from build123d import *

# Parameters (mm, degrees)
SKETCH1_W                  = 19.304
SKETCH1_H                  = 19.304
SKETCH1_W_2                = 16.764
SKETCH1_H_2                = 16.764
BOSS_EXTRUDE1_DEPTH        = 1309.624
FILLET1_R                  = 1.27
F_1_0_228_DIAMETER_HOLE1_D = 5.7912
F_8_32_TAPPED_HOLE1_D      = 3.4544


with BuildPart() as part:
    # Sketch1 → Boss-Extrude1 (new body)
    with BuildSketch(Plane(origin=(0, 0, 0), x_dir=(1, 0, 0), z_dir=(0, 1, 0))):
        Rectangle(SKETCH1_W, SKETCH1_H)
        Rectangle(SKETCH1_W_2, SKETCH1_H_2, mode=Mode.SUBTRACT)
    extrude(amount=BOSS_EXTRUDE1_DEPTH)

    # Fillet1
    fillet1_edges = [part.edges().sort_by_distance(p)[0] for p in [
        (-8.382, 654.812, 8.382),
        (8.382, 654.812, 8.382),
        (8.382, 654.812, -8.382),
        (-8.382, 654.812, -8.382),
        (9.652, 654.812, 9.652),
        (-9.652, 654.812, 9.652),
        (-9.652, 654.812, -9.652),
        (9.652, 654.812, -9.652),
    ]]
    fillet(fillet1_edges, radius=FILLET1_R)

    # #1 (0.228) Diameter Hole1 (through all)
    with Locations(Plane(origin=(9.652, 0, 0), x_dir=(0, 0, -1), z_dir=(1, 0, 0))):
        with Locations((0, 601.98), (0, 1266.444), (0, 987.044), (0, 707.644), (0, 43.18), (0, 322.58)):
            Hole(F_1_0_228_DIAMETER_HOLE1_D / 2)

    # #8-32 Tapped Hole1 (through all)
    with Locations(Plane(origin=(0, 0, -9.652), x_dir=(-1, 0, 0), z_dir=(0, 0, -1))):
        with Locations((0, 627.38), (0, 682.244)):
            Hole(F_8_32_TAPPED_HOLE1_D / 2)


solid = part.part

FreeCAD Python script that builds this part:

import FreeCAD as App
import Part
import Sketcher
Q = App.Units.Quantity


def edges_at(feature, points):
    """Names of the edges that pass closest to the given points."""
    edges = feature.Shape.Edges
    near = lambda p: min(range(len(edges)), key=lambda i: edges[i].distToShape(Part.Vertex(*p))[0])
    return sorted({f"Edge{near(p) + 1}" for p in points})

doc = App.newDocument("Part")
body = doc.addObject("PartDesign::Body", "Body")

sketch1 = body.newObject("Sketcher::SketchObject", "Sketch")
sketch1.AttachmentSupport = (doc.getObject("XZ_Plane"), [""])
sketch1.MapMode = "FlatFace"
sketch1.addGeometry([
    Part.LineSegment(App.Vector(-10, -10, 0), App.Vector(-10, 10, 0)),
    Part.LineSegment(App.Vector(-10, 10, 0), App.Vector(10, 10, 0)),
    Part.LineSegment(App.Vector(10, 10, 0), App.Vector(10, -10, 0)),
    Part.LineSegment(App.Vector(10, -10, 0), App.Vector(-10, -10, 0)),
    Part.LineSegment(App.Vector(8, 8, 0), App.Vector(-8, 8, 0)),
    Part.LineSegment(App.Vector(-8, 8, 0), App.Vector(-8, -8, 0)),
    Part.LineSegment(App.Vector(-8, -8, 0), App.Vector(8, -8, 0)),
    Part.LineSegment(App.Vector(8, -8, 0), App.Vector(8, 8, 0)),
], False)
sketch1.addConstraint([
    Sketcher.Constraint("Coincident", 0, 2, 1, 1),
    Sketcher.Constraint("Coincident", 1, 2, 2, 1),
    Sketcher.Constraint("Coincident", 2, 2, 3, 1),
    Sketcher.Constraint("Coincident", 3, 2, 0, 1),
    Sketcher.Constraint("Coincident", 4, 2, 5, 1),
    Sketcher.Constraint("Coincident", 5, 2, 6, 1),
    Sketcher.Constraint("Coincident", 6, 2, 7, 1),
    Sketcher.Constraint("Coincident", 7, 2, 4, 1),
    Sketcher.Constraint("Vertical", 0),
    Sketcher.Constraint("Horizontal", 1),
    Sketcher.Constraint("Vertical", 2),
    Sketcher.Constraint("Horizontal", 3),
    Sketcher.Constraint("Horizontal", 4),
    Sketcher.Constraint("Vertical", 5),
    Sketcher.Constraint("Horizontal", 6),
    Sketcher.Constraint("Vertical", 7),
    Sketcher.Constraint("Symmetric", 0, 2, 2, 2, -1, 1),
    Sketcher.Constraint("Symmetric", 4, 2, 6, 2, -1, 1),
    Sketcher.Constraint("Equal", 3, 0),
    Sketcher.Constraint("Equal", 6, 5),
    Sketcher.Constraint("DistanceX", 1, 1, 1, 2, Q("0.76 in")),
    Sketcher.Constraint("DistanceX", 4, 2, 4, 1, Q("0.66 in")),
])
pad1 = body.newObject("PartDesign::Pad", "Pad")
pad1.Profile = sketch1
pad1.Length = Q("51.56 in")
pad1.Reversed = True
doc.recompute()

fillet = body.newObject("PartDesign::Fillet", "Fillet")
fillet.Base = (pad1, edges_at(pad1, [
    (-8.382, 654.812, 8.382),
    (8.382, 654.812, 8.382),
    (8.382, 654.812, -8.382),
    (-8.382, 654.812, -8.382),
    (9.652, 654.812, 9.652),
    (-9.652, 654.812, 9.652),
    (-9.652, 654.812, -9.652),
    (9.652, 654.812, -9.652),
]))
fillet.Radius = Q("0.05 in")

sketch2 = body.newObject("Sketcher::SketchObject", "Sketch001")
sketch2.AttachmentSupport = (doc.getObject("YZ_Plane"), [""])
sketch2.MapMode = "FlatFace"
sketch2.AttachmentOffset = App.Placement(App.Vector(0, 0, 0.38 * 25.4), App.Rotation())
sketch2.addGeometry([
    Part.Circle(App.Vector(602, 0, 0), App.Vector(0, 0, 1), 2.9),
    Part.Circle(App.Vector(1266.4, 0, 0), App.Vector(0, 0, 1), 2.9),
    Part.Circle(App.Vector(987, 0, 0), App.Vector(0, 0, 1), 2.9),
    Part.Circle(App.Vector(707.6, 0, 0), App.Vector(0, 0, 1), 2.9),
    Part.Circle(App.Vector(43.2, 0, 0), App.Vector(0, 0, 1), 2.9),
    Part.Circle(App.Vector(322.6, 0, 0), App.Vector(0, 0, 1), 2.9),
], False)
sketch2.addConstraint([
    Sketcher.Constraint("Equal", 0, 1),
    Sketcher.Constraint("Equal", 1, 2),
    Sketcher.Constraint("Equal", 2, 3),
    Sketcher.Constraint("Equal", 3, 4),
    Sketcher.Constraint("Equal", 4, 5),
    Sketcher.Constraint("PointOnObject", 0, 3, -1),
    Sketcher.Constraint("PointOnObject", 1, 3, -1),
    Sketcher.Constraint("PointOnObject", 2, 3, -1),
    Sketcher.Constraint("PointOnObject", 3, 3, -1),
    Sketcher.Constraint("PointOnObject", 4, 3, -1),
    Sketcher.Constraint("PointOnObject", 5, 3, -1),
    Sketcher.Constraint("Diameter", 0, Q("0.228 in")),
    Sketcher.Constraint("DistanceX", 2, 3, 1, 3, Q("11 in")),
    Sketcher.Constraint("DistanceX", 3, 3, 2, 3, Q("11 in")),
    Sketcher.Constraint("DistanceX", 4, 3, 0, 3, Q("22 in")),
    Sketcher.Constraint("DistanceX", 4, 3, 5, 3, Q("11 in")),
    Sketcher.Constraint("DistanceX", -1, 1, 0, 3, Q("23.7 in")),
    Sketcher.Constraint("DistanceX", -1, 1, 1, 3, Q("49.86 in")),
])
doc.recompute()
hole = body.newObject("PartDesign::Hole", "Hole")
hole.Profile = sketch2
hole.ThreadType = "None"
hole.Diameter = Q("0.228 in")
hole.DepthType = "ThroughAll"

sketch3 = body.newObject("Sketcher::SketchObject", "Sketch002")
sketch3.AttachmentSupport = (doc.getObject("XY_Plane"), [""])
sketch3.MapMode = "FlatFace"
sketch3.AttachmentOffset = App.Placement(App.Vector(0, 0, -0.38 * 25.4), App.Rotation())
sketch3.addGeometry([
    Part.Circle(App.Vector(0, 627.4, 0), App.Vector(0, 0, 1), 1.7),
    Part.Circle(App.Vector(0, 682.2, 0), App.Vector(0, 0, 1), 1.7),
], False)
sketch3.addConstraint([
    Sketcher.Constraint("Equal", 0, 1),
    Sketcher.Constraint("PointOnObject", 0, 3, -2),
    Sketcher.Constraint("PointOnObject", 1, 3, -2),
    Sketcher.Constraint("Diameter", 0, Q("0.136 in")),
    Sketcher.Constraint("DistanceY", -1, 1, 0, 3, Q("24.7 in")),
    Sketcher.Constraint("DistanceY", -1, 1, 1, 3, Q("26.86 in")),
])
doc.recompute()
hole2 = body.newObject("PartDesign::Hole", "Hole001")
hole2.Profile = sketch3
hole2.ThreadType = "None"
hole2.Diameter = Q("0.136 in")
hole2.DepthType = "ThroughAll"
hole2.Reversed = True

doc.recompute()
